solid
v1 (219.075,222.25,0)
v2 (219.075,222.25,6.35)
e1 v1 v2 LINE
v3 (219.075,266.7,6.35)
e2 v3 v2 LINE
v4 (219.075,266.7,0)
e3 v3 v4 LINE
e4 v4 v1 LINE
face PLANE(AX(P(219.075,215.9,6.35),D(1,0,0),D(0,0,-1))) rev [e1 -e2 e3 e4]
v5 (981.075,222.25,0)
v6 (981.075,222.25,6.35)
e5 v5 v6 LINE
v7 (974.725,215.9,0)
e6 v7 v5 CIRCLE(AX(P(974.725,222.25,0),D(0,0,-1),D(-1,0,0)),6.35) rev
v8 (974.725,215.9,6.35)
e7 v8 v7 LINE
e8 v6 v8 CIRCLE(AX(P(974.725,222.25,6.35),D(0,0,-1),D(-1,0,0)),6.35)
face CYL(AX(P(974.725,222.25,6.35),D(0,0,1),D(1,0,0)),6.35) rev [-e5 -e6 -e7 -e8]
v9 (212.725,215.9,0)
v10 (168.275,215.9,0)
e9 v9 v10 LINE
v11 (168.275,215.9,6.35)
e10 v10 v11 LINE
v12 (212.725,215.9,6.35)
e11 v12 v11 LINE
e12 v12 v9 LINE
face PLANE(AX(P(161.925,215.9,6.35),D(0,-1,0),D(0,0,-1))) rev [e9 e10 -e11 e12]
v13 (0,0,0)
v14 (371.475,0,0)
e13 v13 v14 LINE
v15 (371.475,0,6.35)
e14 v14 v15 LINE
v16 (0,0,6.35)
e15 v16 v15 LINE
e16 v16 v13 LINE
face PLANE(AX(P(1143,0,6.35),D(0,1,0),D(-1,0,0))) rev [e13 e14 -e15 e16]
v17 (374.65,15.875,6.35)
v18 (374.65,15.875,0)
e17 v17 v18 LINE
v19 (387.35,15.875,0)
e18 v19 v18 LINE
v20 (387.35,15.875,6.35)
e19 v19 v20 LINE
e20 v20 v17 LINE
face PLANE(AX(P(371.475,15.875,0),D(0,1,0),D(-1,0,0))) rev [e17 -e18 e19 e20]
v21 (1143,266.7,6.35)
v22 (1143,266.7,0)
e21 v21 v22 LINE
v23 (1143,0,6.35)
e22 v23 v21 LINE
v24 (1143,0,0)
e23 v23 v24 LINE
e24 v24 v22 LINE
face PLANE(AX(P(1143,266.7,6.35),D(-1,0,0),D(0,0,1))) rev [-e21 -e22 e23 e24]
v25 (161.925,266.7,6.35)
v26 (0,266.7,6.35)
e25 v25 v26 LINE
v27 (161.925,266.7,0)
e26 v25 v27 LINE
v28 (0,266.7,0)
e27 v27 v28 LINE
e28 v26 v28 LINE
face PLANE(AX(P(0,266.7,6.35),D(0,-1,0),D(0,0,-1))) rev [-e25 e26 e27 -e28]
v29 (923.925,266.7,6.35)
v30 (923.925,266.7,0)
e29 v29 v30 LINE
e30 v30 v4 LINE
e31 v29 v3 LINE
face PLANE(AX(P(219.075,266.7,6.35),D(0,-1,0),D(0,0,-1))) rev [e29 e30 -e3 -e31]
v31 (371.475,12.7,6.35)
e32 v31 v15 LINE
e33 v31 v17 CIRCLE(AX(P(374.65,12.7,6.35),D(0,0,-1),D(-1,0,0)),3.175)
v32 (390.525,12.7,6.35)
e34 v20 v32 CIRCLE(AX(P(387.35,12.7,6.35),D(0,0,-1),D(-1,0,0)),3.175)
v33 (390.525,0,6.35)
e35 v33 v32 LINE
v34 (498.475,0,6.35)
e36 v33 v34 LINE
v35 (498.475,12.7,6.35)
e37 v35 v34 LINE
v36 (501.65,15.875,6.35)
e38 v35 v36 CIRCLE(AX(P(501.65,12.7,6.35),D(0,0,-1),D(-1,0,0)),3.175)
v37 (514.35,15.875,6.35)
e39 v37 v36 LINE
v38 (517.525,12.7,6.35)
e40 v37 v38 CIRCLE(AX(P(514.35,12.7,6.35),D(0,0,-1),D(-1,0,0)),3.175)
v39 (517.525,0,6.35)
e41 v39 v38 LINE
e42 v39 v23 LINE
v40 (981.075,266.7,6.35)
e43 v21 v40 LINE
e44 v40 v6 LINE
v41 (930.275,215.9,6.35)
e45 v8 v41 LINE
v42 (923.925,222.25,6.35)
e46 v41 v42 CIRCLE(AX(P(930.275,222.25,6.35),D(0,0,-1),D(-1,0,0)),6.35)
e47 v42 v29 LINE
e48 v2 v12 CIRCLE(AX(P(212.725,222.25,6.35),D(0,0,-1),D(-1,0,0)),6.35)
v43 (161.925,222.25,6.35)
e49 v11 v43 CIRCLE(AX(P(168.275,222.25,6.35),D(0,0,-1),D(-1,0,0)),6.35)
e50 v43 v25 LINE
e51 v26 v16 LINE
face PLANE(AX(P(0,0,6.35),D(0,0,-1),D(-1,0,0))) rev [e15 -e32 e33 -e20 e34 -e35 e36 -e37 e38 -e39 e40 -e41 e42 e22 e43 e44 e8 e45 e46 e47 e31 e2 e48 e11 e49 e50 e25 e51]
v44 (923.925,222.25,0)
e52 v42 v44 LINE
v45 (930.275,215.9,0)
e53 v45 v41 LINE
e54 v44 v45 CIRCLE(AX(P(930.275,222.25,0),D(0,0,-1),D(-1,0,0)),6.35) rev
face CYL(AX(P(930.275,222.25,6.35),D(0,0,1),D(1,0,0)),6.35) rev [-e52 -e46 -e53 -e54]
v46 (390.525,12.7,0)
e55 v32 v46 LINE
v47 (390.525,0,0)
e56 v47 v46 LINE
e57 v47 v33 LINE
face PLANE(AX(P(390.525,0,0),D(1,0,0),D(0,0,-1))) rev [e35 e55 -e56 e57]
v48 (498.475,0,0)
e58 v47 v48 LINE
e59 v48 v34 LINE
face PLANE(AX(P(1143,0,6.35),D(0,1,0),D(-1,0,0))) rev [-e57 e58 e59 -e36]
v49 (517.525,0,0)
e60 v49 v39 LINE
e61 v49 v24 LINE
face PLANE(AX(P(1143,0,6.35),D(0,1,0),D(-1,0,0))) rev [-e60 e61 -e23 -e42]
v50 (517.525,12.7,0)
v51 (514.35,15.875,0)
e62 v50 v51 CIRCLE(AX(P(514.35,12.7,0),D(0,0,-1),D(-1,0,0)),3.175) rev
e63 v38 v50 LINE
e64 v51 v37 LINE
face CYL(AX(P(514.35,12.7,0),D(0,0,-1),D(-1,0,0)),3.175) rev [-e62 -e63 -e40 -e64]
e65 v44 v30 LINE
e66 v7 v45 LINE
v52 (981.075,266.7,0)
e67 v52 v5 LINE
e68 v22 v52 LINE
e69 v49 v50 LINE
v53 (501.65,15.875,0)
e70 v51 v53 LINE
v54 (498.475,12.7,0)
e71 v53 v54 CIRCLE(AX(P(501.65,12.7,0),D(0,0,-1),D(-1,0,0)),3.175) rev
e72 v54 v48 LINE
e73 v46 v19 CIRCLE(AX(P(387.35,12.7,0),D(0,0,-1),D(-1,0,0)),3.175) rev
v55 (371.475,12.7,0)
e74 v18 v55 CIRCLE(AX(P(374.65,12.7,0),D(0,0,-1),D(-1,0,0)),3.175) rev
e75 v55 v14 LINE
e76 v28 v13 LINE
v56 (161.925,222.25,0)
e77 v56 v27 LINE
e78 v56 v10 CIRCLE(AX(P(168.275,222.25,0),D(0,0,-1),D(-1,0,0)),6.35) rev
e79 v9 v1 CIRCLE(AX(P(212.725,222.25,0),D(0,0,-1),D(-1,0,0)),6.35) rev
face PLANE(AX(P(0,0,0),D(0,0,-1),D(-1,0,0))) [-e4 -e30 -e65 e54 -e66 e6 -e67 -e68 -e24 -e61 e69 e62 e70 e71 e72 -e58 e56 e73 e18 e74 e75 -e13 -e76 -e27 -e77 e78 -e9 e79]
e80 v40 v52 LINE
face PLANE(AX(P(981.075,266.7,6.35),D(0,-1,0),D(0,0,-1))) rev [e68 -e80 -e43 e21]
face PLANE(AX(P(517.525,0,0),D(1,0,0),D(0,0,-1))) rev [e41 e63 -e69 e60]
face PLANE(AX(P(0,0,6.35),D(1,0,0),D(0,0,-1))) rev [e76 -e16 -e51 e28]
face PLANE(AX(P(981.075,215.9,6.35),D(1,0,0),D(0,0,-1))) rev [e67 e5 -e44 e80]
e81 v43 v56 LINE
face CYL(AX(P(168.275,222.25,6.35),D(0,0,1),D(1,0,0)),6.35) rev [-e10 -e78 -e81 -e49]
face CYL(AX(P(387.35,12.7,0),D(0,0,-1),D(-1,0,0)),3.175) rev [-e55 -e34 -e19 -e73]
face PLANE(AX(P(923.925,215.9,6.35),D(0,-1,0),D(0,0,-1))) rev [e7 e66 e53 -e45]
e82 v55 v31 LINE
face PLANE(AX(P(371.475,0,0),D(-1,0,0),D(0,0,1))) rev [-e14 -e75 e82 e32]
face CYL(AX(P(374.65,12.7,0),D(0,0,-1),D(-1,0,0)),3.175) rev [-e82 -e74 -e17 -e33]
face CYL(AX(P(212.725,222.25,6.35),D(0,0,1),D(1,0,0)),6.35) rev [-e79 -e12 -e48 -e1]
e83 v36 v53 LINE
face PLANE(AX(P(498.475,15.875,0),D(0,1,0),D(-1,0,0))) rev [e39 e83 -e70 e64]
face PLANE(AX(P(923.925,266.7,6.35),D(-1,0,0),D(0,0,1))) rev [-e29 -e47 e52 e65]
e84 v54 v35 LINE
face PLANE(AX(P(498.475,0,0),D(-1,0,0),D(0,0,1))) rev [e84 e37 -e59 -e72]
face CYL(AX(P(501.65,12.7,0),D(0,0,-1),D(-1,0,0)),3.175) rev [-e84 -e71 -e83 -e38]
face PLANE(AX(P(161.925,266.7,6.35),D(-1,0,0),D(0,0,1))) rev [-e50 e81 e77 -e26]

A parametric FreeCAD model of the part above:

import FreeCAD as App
import Part
import Sketcher
from FreeCAD import Vector
Q = App.Units.Quantity


def edges_at(feature, points):
    """Names of the edges that pass closest to the given points."""
    edges = feature.Shape.Edges
    near = lambda p: min(range(len(edges)), key=lambda i: edges[i].distToShape(Part.Vertex(*p))[0])
    return sorted({f"Edge{near(p) + 1}" for p in points})

doc = App.newDocument("Part")
body = doc.addObject("PartDesign::Body", "Body")

# Sketch on XY plane
sketch1 = body.newObject("Sketcher::SketchObject", "Sketch")
sketch1.AttachmentSupport = (doc.getObject("XY_Plane"), [""])
sketch1.MapMode = "FlatFace"
sketch1.addGeometry([
    Part.LineSegment(Vector(0, 267, 0), Vector(0, 0, 0)),  # 0
    Part.LineSegment(Vector(0, 0, 0), Vector(1143, 0, 0)),  # 1
    Part.LineSegment(Vector(1143, 0, 0), Vector(1143, 267, 0)),  # 2
    Part.LineSegment(Vector(1143, 267, 0), Vector(981, 267, 0)),  # 3
    Part.LineSegment(Vector(981, 267, 0), Vector(981, 216, 0)),  # 4
    Part.LineSegment(Vector(981, 216, 0), Vector(924, 216, 0)),  # 5
    Part.LineSegment(Vector(924, 216, 0), Vector(924, 267, 0)),  # 6
    Part.LineSegment(Vector(924, 267, 0), Vector(219, 267, 0)),  # 7
    Part.LineSegment(Vector(219, 267, 0), Vector(219, 216, 0)),  # 8
    Part.LineSegment(Vector(219, 216, 0), Vector(162, 216, 0)),  # 9
    Part.LineSegment(Vector(162, 216, 0), Vector(162, 267, 0)),  # 10
    Part.LineSegment(Vector(162, 267, 0), Vector(0, 267, 0)),  # 11
], False)
sketch1.addConstraint([
    Sketcher.Constraint("Coincident", 0, 2, 1, 1),
    Sketcher.Constraint("Coincident", 1, 2, 2, 1),
    Sketcher.Constraint("Coincident", 2, 2, 3, 1),
    Sketcher.Constraint("Coincident", 3, 2, 4, 1),
    Sketcher.Constraint("Coincident", 4, 2, 5, 1),
    Sketcher.Constraint("Coincident", 5, 2, 6, 1),
    Sketcher.Constraint("Coincident", 6, 2, 7, 1),
    Sketcher.Constraint("Coincident", 7, 2, 8, 1),
    Sketcher.Constraint("Coincident", 8, 2, 9, 1),
    Sketcher.Constraint("Coincident", 9, 2, 10, 1),
    Sketcher.Constraint("Coincident", 10, 2, 11, 1),
    Sketcher.Constraint("Coincident", 11, 2, 0, 1),
    Sketcher.Constraint("Vertical", 0),
    Sketcher.Constraint("Horizontal", 1),
    Sketcher.Constraint("Vertical", 2),
    Sketcher.Constraint("Horizontal", 3),
    Sketcher.Constraint("Vertical", 4),
    Sketcher.Constraint("Horizontal", 5),
    Sketcher.Constraint("Vertical", 6),
    Sketcher.Constraint("Horizontal", 7),
    Sketcher.Constraint("Vertical", 8),
    Sketcher.Constraint("Horizontal", 9),
    Sketcher.Constraint("Vertical", 10),
    Sketcher.Constraint("Horizontal", 11),
    Sketcher.Constraint("Coincident", 0, 2, -1, 1),
    Sketcher.Constraint("Horizontal", 3, 2, 6, 2),
    Sketcher.Constraint("Horizontal", 5, 2, 8, 2),
    Sketcher.Constraint("Horizontal", 7, 2, 10, 2),
    Sketcher.Constraint("Equal", 5, 9),
    Sketcher.Constraint("Equal", 3, 11),
    Sketcher.Constraint("DistanceX", 1, 1, 1, 2, Q("45 in")),
    Sketcher.Constraint("DistanceY", 4, 2, 4, 1, Q("2 in")),
    Sketcher.Constraint("DistanceY", 0, 2, 0, 1, Q("10.5 in")),
    Sketcher.Constraint("DistanceX", 7, 2, 3, 2, Q("30 in")),
    Sketcher.Constraint("DistanceX", 5, 2, 5, 1, Q("2.25 in")),
])
pad1 = body.newObject("PartDesign::Pad", "Pad")
pad1.Profile = sketch1
pad1.Length = Q("0.25 in")
doc.recompute()

fillet = body.newObject("PartDesign::Fillet", "Fillet")
fillet.Base = (pad1, edges_at(pad1, [
    (161.925, 215.9, 3.175),
    (219.075, 215.9, 3.175),
    (923.925, 215.9, 3.175),
    (981.075, 215.9, 3.175),
]))
fillet.Radius = Q("0.25 in")

# Sketch on XY plane
sketch2 = body.newObject("Sketcher::SketchObject", "Sketch001")
sketch2.AttachmentSupport = (doc.getObject("XY_Plane"), [""])
sketch2.MapMode = "FlatFace"
sketch2.AttachmentOffset = App.Placement(Vector(0, 0, 0.25 * 25.4), App.Rotation())
sketch2.addGeometry([
    Part.LineSegment(Vector(371, 16, 0), Vector(371, 0, 0)),  # 0
    Part.LineSegment(Vector(371, 0, 0), Vector(391, 0, 0)),  # 1
    Part.LineSegment(Vector(391, 0, 0), Vector(391, 16, 0)),  # 2
    Part.LineSegment(Vector(391, 16, 0), Vector(371, 16, 0)),  # 3
    Part.LineSegment(Vector(498, 16, 0), Vector(498, 0, 0)),  # 4
    Part.LineSegment(Vector(498, 0, 0), Vector(518, 0, 0)),  # 5
    Part.LineSegment(Vector(518, 0, 0), Vector(518, 16, 0)),  # 6
    Part.LineSegment(Vector(518, 16, 0), Vector(498, 16, 0)),  # 7
], False)
sketch2.addConstraint([
    Sketcher.Constraint("Coincident", 0, 2, 1, 1),
    Sketcher.Constraint("Coincident", 1, 2, 2, 1),
    Sketcher.Constraint("Coincident", 2, 2, 3, 1),
    Sketcher.Constraint("Coincident", 3, 2, 0, 1),
    Sketcher.Constraint("Coincident", 4, 2, 5, 1),
    Sketcher.Constraint("Coincident", 5, 2, 6, 1),
    Sketcher.Constraint("Coincident", 6, 2, 7, 1),
    Sketcher.Constraint("Coincident", 7, 2, 4, 1),
    Sketcher.Constraint("Vertical", 0),
    Sketcher.Constraint("Horizontal", 1),
    Sketcher.Constraint("Vertical", 2),
    Sketcher.Constraint("Horizontal", 3),
    Sketcher.Constraint("Vertical", 4),
    Sketcher.Constraint("Horizontal", 5),
    Sketcher.Constraint("Vertical", 6),
    Sketcher.Constraint("Horizontal", 7),
    Sketcher.Constraint("PointOnObject", 0, 2, -1),
    Sketcher.Constraint("PointOnObject", 4, 2, -1),
    Sketcher.Constraint("Horizontal", 3, 2, 6, 2),
    Sketcher.Constraint("Equal", 3, 5),
    Sketcher.Constraint("DistanceX", 0, 2, 4, 2, Q("5 in")),
    Sketcher.Constraint("DistanceX", 1, 1, 1, 2, Q("0.75 in")),
    Sketcher.Constraint("DistanceY", 0, 2, 0, 1, Q("0.625 in")),
    Sketcher.Constraint("DistanceX", -1, 1, 0, 2, Q("14.625 in")),
])
pocket1 = body.newObject("PartDesign::Pocket", "Pocket")
pocket1.Profile = sketch2
pocket1.Type = "ThroughAll"
doc.recompute()

fillet2 = body.newObject("PartDesign::Fillet", "Fillet001")
fillet2.Base = (pocket1, edges_at(pocket1, [
    (371.475, 15.875, 3.175),
    (390.525, 15.875, 3.175),
    (498.475, 15.875, 3.175),
    (517.525, 15.875, 3.175),
]))
fillet2.Radius = Q("0.125 in")

doc.recompute()
